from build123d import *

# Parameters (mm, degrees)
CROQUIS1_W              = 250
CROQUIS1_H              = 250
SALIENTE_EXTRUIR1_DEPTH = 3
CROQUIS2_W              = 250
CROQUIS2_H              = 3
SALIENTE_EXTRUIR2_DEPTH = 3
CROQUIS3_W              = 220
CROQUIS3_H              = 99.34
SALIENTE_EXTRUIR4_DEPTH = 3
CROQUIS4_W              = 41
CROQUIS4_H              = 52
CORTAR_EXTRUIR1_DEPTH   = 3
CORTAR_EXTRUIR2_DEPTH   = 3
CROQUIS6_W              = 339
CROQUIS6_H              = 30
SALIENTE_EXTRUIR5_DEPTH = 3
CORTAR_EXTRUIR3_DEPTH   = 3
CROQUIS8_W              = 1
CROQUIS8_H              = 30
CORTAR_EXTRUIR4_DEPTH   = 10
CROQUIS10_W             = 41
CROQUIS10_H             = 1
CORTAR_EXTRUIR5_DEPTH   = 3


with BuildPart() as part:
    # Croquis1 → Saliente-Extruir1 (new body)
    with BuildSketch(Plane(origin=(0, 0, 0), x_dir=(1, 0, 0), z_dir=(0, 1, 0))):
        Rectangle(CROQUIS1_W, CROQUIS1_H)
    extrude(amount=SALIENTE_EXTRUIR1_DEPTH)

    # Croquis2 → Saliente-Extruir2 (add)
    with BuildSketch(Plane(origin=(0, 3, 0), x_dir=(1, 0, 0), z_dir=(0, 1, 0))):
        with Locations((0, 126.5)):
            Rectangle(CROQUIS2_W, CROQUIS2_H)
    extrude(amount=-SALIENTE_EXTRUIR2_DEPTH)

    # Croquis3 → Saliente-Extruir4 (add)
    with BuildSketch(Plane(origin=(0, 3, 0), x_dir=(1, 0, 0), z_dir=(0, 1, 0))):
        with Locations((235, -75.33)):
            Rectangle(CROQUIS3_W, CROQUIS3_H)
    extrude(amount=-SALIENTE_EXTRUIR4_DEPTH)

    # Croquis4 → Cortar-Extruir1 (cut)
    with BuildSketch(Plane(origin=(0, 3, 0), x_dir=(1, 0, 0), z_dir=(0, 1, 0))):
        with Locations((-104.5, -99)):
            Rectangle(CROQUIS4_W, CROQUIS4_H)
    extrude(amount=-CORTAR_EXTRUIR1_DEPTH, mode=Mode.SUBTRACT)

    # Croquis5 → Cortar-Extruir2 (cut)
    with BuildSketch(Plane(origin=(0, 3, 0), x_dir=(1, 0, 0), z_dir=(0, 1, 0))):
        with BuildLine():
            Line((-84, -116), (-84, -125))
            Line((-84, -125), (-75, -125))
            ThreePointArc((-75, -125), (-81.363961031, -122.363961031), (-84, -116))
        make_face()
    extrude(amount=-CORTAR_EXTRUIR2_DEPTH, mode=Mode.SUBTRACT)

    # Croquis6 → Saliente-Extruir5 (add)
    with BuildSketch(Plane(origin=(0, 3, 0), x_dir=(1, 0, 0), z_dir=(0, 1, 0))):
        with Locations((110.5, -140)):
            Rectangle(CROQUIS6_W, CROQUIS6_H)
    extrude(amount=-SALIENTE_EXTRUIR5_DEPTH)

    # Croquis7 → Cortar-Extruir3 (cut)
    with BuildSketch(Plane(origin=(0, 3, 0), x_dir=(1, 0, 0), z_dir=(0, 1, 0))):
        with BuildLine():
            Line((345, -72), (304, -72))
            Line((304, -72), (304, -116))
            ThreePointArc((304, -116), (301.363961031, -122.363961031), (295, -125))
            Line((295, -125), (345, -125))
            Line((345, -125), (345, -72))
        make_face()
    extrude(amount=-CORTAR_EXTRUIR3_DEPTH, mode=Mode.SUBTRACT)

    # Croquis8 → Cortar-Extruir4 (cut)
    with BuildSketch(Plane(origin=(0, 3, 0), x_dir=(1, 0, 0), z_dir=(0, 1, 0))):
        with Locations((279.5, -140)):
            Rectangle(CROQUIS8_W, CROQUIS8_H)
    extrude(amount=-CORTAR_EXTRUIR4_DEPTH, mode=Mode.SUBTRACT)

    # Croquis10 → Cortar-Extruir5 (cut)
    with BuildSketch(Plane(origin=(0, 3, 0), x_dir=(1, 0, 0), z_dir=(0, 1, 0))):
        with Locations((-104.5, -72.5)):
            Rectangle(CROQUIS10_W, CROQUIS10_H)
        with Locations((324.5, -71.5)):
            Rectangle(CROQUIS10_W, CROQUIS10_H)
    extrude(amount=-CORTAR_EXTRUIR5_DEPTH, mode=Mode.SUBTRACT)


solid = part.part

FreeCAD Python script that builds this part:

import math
import FreeCAD as App
import Part
import Sketcher

V = App.Vector


def add_polygon(sketch, points):
    """Adds a closed chain of lines whose ends are joined by coincident constraints."""
    first, n = sketch.GeometryCount, len(points)
    for a, b in zip(points, points[1:] + points[:1]):
        sketch.addGeometry(Part.LineSegment(App.Vector(*a, 0), App.Vector(*b, 0)), False)
    for i in range(n):
        sketch.addConstraint(Sketcher.Constraint("Coincident", first + i, 2, first + (i + 1) % n, 1))

doc = App.newDocument("Part")
body = doc.addObject("PartDesign::Body", "Body")

sketch1 = body.newObject("Sketcher::SketchObject", "Sketch")
sketch1.AttachmentSupport = (doc.getObject("XZ_Plane"), [""])
sketch1.MapMode = "FlatFace"
add_polygon(sketch1, [(-125, -125), (-125, 125), (125, 125), (125, -125)])
sketch1.addConstraint(Sketcher.Constraint("Vertical", 0))
sketch1.addConstraint(Sketcher.Constraint("Horizontal", 1))
sketch1.addConstraint(Sketcher.Constraint("Vertical", 2))
sketch1.addConstraint(Sketcher.Constraint("Horizontal", 3))
sketch1.addConstraint(Sketcher.Constraint("Symmetric", 0, 2, 2, 2, -1, 1))
sketch1.addConstraint(Sketcher.Constraint("Equal", 3, 0))
sketch1.addConstraint(Sketcher.Constraint("DistanceX", 1, 1, 1, 2, 250.0))
pad1 = body.newObject("PartDesign::Pad", "Pad")
pad1.Profile = sketch1
pad1.Length = 3
pad1.Reversed = True

sketch2 = body.newObject("Sketcher::SketchObject", "Sketch001")
sketch2.AttachmentSupport = (doc.getObject("XZ_Plane"), [""])
sketch2.MapMode = "FlatFace"
sketch2.AttachmentOffset = App.Placement(V(0, 0, -3), App.Rotation())
add_polygon(sketch2, [(-125, -128), (-125, -125), (125, -125), (125, -128)])
sketch2.addConstraint(Sketcher.Constraint("Vertical", 0))
sketch2.addConstraint(Sketcher.Constraint("Horizontal", 1))
sketch2.addConstraint(Sketcher.Constraint("Vertical", 2))
sketch2.addConstraint(Sketcher.Constraint("Horizontal", 3))
sketch2.addConstraint(Sketcher.Constraint("DistanceX", 1, 1, 1, 2, 250.0))
sketch2.addConstraint(Sketcher.Constraint("DistanceY", 0, 1, 0, 2, 3.0))
sketch2.addConstraint(Sketcher.Constraint("DistanceX", 0, 2, -1, 1, 125.0))
sketch2.addConstraint(Sketcher.Constraint("DistanceY", 0, 2, -1, 1, 125.0))
pad2 = body.newObject("PartDesign::Pad", "Pad001")
pad2.Profile = sketch2
pad2.Length = 3

sketch3 = body.newObject("Sketcher::SketchObject", "Sketch002")
sketch3.AttachmentSupport = (doc.getObject("XZ_Plane"), [""])
sketch3.MapMode = "FlatFace"
sketch3.AttachmentOffset = App.Placement(V(0, 0, -3), App.Rotation())
add_polygon(sketch3, [(125, 26), (125, 125), (345, 125), (345, 26)])
sketch3.addConstraint(Sketcher.Constraint("Vertical", 0))
sketch3.addConstraint(Sketcher.Constraint("Horizontal", 1))
sketch3.addConstraint(Sketcher.Constraint("Vertical", 2))
sketch3.addConstraint(Sketcher.Constraint("Horizontal", 3))
sketch3.addConstraint(Sketcher.Constraint("DistanceX", 1, 1, 1, 2, 220.0))
sketch3.addConstraint(Sketcher.Constraint("DistanceX", -1, 1, 0, 2, 125.0))
sketch3.addConstraint(Sketcher.Constraint("DistanceY", -1, 1, 0, 2, 125.0))
sketch3.addConstraint(Sketcher.Constraint("DistanceY", 0, 1, 0, 2, 99.34))
pad3 = body.newObject("PartDesign::Pad", "Pad002")
pad3.Profile = sketch3
pad3.Length = 3

sketch4 = body.newObject("Sketcher::SketchObject", "Sketch003")
sketch4.AttachmentSupport = (doc.getObject("XZ_Plane"), [""])
sketch4.MapMode = "FlatFace"
sketch4.AttachmentOffset = App.Placement(V(0, 0, -3), App.Rotation())
add_polygon(sketch4, [(-125, 73), (-125, 125), (-84, 125), (-84, 73)])
sketch4.addConstraint(Sketcher.Constraint("Vertical", 0))
sketch4.addConstraint(Sketcher.Constraint("Horizontal", 1))
sketch4.addConstraint(Sketcher.Constraint("Vertical", 2))
sketch4.addConstraint(Sketcher.Constraint("Horizontal", 3))
sketch4.addConstraint(Sketcher.Constraint("DistanceX", 1, 1, 1, 2, 41.0))
sketch4.addConstraint(Sketcher.Constraint("DistanceY", 0, 1, 0, 2, 52.0))
sketch4.addConstraint(Sketcher.Constraint("DistanceX", 0, 2, -1, 1, 125.0))
sketch4.addConstraint(Sketcher.Constraint("DistanceY", -1, 1, 0, 2, 125.0))
pocket1 = body.newObject("PartDesign::Pocket", "Pocket")
pocket1.Profile = sketch4
pocket1.Length = 3
pocket1.Reversed = True

sketch5 = body.newObject("Sketcher::SketchObject", "Sketch004")
sketch5.AttachmentSupport = (doc.getObject("XZ_Plane"), [""])
sketch5.MapMode = "FlatFace"
sketch5.AttachmentOffset = App.Placement(V(0, 0, -3), App.Rotation())
sketch5.addGeometry(Part.LineSegment(V(-84, 116, 0), V(-84, 125, 0)), False)
sketch5.addGeometry(Part.LineSegment(V(-84, 125, 0), V(-75, 125, 0)), False)
sketch5.addGeometry(Part.ArcOfCircle(Part.Circle(V(-75, 116, 0), V(0, 0, 1), 9), math.radians(90), math.radians(180)), False)
sketch5.addConstraint(Sketcher.Constraint("Coincident", 0, 2, 1, 1))
sketch5.addConstraint(Sketcher.Constraint("Tangent", 1, 2, 2, 1))
sketch5.addConstraint(Sketcher.Constraint("Tangent", 2, 2, 0, 1))
sketch5.addConstraint(Sketcher.Constraint("Vertical", 0))
sketch5.addConstraint(Sketcher.Constraint("Horizontal", 1))
sketch5.addConstraint(Sketcher.Constraint("Radius", 2, 9.0))
sketch5.addConstraint(Sketcher.Constraint("DistanceX", 2, 3, -1, 1, 75.0))
sketch5.addConstraint(Sketcher.Constraint("DistanceY", -1, 1, 2, 3, 116.0))
pocket2 = body.newObject("PartDesign::Pocket", "Pocket001")
pocket2.Profile = sketch5
pocket2.Length = 3
pocket2.Reversed = True

sketch6 = body.newObject("Sketcher::SketchObject", "Sketch005")
sketch6.AttachmentSupport = (doc.getObject("XZ_Plane"), [""])
sketch6.MapMode = "FlatFace"
sketch6.AttachmentOffset = App.Placement(V(0, 0, -3), App.Rotation())
add_polygon(sketch6, [(-59, 125), (-59, 155), (280, 155), (280, 125)])
sketch6.addConstraint(Sketcher.Constraint("Vertical", 0))
sketch6.addConstraint(Sketcher.Constraint("Horizontal", 1))
sketch6.addConstraint(Sketcher.Constraint("Vertical", 2))
sketch6.addConstraint(Sketcher.Constraint("Horizontal", 3))
sketch6.addConstraint(Sketcher.Constraint("DistanceX", 1, 1, 1, 2, 339.0))
sketch6.addConstraint(Sketcher.Constraint("DistanceY", 0, 1, 0, 2, 30.0))
sketch6.addConstraint(Sketcher.Constraint("DistanceX", 0, 2, -1, 1, 59.0))
sketch6.addConstraint(Sketcher.Constraint("DistanceY", -1, 1, 0, 2, 155.0))
pad4 = body.newObject("PartDesign::Pad", "Pad003")
pad4.Profile = sketch6
pad4.Length = 3

sketch7 = body.newObject("Sketcher::SketchObject", "Sketch006")
sketch7.AttachmentSupport = (doc.getObject("XZ_Plane"), [""])
sketch7.MapMode = "FlatFace"
sketch7.AttachmentOffset = App.Placement(V(0, 0, -3), App.Rotation())
sketch7.addGeometry(Part.LineSegment(V(345, 72, 0), V(304, 72, 0)), False)
sketch7.addGeometry(Part.LineSegment(V(304, 72, 0), V(304, 116, 0)), False)
sketch7.addGeometry(Part.ArcOfCircle(Part.Circle(V(295, 116, 0), V(0, 0, 1), 9), math.radians(0), math.radians(90)), False)
sketch7.addGeometry(Part.LineSegment(V(295, 125, 0), V(345, 125, 0)), False)
sketch7.addGeometry(Part.LineSegment(V(345, 125, 0), V(345, 72, 0)), False)
sketch7.addConstraint(Sketcher.Constraint("Coincident", 0, 2, 1, 1))
sketch7.addConstraint(Sketcher.Constraint("Tangent", 1, 2, 2, 1))
sketch7.addConstraint(Sketcher.Constraint("Tangent", 2, 2, 3, 1))
sketch7.addConstraint(Sketcher.Constraint("Coincident", 3, 2, 4, 1))
sketch7.addConstraint(Sketcher.Constraint("Coincident", 4, 2, 0, 1))
sketch7.addConstraint(Sketcher.Constraint("Horizontal", 0))
sketch7.addConstraint(Sketcher.Constraint("Vertical", 1))
sketch7.addConstraint(Sketcher.Constraint("Horizontal", 3))
sketch7.addConstraint(Sketcher.Constraint("Vertical", 4))
sketch7.addConstraint(Sketcher.Constraint("Radius", 2, 9.0))
sketch7.addConstraint(Sketcher.Constraint("DistanceX", 0, 2, 0, 1, 41.0))
sketch7.addConstraint(Sketcher.Constraint("DistanceY", 1, 1, 1, 2, 44.0))
sketch7.addConstraint(Sketcher.Constraint("DistanceX", -1, 1, 2, 3, 295.0))
sketch7.addConstraint(Sketcher.Constraint("DistanceY", -1, 1, 2, 3, 116.0))
pocket3 = body.newObject("PartDesign::Pocket", "Pocket002")
pocket3.Profile = sketch7
pocket3.Length = 3
pocket3.Reversed = True

sketch8 = body.newObject("Sketcher::SketchObject", "Sketch007")
sketch8.AttachmentSupport = (doc.getObject("XZ_Plane"), [""])
sketch8.MapMode = "FlatFace"
sketch8.AttachmentOffset = App.Placement(V(0, 0, -3), App.Rotation())
add_polygon(sketch8, [(279, 125), (279, 155), (280, 155), (280, 125)])
sketch8.addConstraint(Sketcher.Constraint("Vertical", 0))
sketch8.addConstraint(Sketcher.Constraint("Horizontal", 1))
sketch8.addConstraint(Sketcher.Constraint("Vertical", 2))
sketch8.addConstraint(Sketcher.Constraint("Horizontal", 3))
sketch8.addConstraint(Sketcher.Constraint("DistanceX", 1, 1, 1, 2, 1.0))
sketch8.addConstraint(Sketcher.Constraint("DistanceY", 0, 1, 0, 2, 30.0))
sketch8.addConstraint(Sketcher.Constraint("DistanceX", -1, 1, 0, 2, 279.0))
sketch8.addConstraint(Sketcher.Constraint("DistanceY", -1, 1, 0, 2, 155.0))
pocket4 = body.newObject("PartDesign::Pocket", "Pocket003")
pocket4.Profile = sketch8
pocket4.Length = 10
pocket4.Reversed = True

sketch9 = body.newObject("Sketcher::SketchObject", "Sketch008")
sketch9.AttachmentSupport = (doc.getObject("XZ_Plane"), [""])
sketch9.MapMode = "FlatFace"
sketch9.AttachmentOffset = App.Placement(V(0, 0, -3), App.Rotation())
add_polygon(sketch9, [(-125, 72), (-125, 73), (-84, 73), (-84, 72)])
add_polygon(sketch9, [(304, 71), (304, 72), (345, 72), (345, 71)])
sketch9.addConstraint(Sketcher.Constraint("Vertical", 0))
sketch9.addConstraint(Sketcher.Constraint("Horizontal", 1))
sketch9.addConstraint(Sketcher.Constraint("Vertical", 2))
sketch9.addConstraint(Sketcher.Constraint("Horizontal", 3))
sketch9.addConstraint(Sketcher.Constraint("Vertical", 4))
sketch9.addConstraint(Sketcher.Constraint("Horizontal", 5))
sketch9.addConstraint(Sketcher.Constraint("Vertical", 6))
sketch9.addConstraint(Sketcher.Constraint("Horizontal", 7))
sketch9.addConstraint(Sketcher.Constraint("Horizontal", 3, 2, 4, 2))
sketch9.addConstraint(Sketcher.Constraint("Equal", 3, 5))
sketch9.addConstraint(Sketcher.Constraint("Equal", 2, 4))
sketch9.addConstraint(Sketcher.Constraint("DistanceX", 1, 1, 1, 2, 41.0))
sketch9.addConstraint(Sketcher.Constraint("DistanceY", 0, 1, 0, 2, 1.0))
sketch9.addConstraint(Sketcher.Constraint("DistanceX", 0, 2, -1, 1, 125.0))
sketch9.addConstraint(Sketcher.Constraint("DistanceY", -1, 1, 0, 2, 73.0))
sketch9.addConstraint(Sketcher.Constraint("DistanceX", -1, 1, 4, 2, 304.0))
pocket5 = body.newObject("PartDesign::Pocket", "Pocket004")
pocket5.Profile = sketch9
pocket5.Length = 3
pocket5.Reversed = True

doc.recompute()
